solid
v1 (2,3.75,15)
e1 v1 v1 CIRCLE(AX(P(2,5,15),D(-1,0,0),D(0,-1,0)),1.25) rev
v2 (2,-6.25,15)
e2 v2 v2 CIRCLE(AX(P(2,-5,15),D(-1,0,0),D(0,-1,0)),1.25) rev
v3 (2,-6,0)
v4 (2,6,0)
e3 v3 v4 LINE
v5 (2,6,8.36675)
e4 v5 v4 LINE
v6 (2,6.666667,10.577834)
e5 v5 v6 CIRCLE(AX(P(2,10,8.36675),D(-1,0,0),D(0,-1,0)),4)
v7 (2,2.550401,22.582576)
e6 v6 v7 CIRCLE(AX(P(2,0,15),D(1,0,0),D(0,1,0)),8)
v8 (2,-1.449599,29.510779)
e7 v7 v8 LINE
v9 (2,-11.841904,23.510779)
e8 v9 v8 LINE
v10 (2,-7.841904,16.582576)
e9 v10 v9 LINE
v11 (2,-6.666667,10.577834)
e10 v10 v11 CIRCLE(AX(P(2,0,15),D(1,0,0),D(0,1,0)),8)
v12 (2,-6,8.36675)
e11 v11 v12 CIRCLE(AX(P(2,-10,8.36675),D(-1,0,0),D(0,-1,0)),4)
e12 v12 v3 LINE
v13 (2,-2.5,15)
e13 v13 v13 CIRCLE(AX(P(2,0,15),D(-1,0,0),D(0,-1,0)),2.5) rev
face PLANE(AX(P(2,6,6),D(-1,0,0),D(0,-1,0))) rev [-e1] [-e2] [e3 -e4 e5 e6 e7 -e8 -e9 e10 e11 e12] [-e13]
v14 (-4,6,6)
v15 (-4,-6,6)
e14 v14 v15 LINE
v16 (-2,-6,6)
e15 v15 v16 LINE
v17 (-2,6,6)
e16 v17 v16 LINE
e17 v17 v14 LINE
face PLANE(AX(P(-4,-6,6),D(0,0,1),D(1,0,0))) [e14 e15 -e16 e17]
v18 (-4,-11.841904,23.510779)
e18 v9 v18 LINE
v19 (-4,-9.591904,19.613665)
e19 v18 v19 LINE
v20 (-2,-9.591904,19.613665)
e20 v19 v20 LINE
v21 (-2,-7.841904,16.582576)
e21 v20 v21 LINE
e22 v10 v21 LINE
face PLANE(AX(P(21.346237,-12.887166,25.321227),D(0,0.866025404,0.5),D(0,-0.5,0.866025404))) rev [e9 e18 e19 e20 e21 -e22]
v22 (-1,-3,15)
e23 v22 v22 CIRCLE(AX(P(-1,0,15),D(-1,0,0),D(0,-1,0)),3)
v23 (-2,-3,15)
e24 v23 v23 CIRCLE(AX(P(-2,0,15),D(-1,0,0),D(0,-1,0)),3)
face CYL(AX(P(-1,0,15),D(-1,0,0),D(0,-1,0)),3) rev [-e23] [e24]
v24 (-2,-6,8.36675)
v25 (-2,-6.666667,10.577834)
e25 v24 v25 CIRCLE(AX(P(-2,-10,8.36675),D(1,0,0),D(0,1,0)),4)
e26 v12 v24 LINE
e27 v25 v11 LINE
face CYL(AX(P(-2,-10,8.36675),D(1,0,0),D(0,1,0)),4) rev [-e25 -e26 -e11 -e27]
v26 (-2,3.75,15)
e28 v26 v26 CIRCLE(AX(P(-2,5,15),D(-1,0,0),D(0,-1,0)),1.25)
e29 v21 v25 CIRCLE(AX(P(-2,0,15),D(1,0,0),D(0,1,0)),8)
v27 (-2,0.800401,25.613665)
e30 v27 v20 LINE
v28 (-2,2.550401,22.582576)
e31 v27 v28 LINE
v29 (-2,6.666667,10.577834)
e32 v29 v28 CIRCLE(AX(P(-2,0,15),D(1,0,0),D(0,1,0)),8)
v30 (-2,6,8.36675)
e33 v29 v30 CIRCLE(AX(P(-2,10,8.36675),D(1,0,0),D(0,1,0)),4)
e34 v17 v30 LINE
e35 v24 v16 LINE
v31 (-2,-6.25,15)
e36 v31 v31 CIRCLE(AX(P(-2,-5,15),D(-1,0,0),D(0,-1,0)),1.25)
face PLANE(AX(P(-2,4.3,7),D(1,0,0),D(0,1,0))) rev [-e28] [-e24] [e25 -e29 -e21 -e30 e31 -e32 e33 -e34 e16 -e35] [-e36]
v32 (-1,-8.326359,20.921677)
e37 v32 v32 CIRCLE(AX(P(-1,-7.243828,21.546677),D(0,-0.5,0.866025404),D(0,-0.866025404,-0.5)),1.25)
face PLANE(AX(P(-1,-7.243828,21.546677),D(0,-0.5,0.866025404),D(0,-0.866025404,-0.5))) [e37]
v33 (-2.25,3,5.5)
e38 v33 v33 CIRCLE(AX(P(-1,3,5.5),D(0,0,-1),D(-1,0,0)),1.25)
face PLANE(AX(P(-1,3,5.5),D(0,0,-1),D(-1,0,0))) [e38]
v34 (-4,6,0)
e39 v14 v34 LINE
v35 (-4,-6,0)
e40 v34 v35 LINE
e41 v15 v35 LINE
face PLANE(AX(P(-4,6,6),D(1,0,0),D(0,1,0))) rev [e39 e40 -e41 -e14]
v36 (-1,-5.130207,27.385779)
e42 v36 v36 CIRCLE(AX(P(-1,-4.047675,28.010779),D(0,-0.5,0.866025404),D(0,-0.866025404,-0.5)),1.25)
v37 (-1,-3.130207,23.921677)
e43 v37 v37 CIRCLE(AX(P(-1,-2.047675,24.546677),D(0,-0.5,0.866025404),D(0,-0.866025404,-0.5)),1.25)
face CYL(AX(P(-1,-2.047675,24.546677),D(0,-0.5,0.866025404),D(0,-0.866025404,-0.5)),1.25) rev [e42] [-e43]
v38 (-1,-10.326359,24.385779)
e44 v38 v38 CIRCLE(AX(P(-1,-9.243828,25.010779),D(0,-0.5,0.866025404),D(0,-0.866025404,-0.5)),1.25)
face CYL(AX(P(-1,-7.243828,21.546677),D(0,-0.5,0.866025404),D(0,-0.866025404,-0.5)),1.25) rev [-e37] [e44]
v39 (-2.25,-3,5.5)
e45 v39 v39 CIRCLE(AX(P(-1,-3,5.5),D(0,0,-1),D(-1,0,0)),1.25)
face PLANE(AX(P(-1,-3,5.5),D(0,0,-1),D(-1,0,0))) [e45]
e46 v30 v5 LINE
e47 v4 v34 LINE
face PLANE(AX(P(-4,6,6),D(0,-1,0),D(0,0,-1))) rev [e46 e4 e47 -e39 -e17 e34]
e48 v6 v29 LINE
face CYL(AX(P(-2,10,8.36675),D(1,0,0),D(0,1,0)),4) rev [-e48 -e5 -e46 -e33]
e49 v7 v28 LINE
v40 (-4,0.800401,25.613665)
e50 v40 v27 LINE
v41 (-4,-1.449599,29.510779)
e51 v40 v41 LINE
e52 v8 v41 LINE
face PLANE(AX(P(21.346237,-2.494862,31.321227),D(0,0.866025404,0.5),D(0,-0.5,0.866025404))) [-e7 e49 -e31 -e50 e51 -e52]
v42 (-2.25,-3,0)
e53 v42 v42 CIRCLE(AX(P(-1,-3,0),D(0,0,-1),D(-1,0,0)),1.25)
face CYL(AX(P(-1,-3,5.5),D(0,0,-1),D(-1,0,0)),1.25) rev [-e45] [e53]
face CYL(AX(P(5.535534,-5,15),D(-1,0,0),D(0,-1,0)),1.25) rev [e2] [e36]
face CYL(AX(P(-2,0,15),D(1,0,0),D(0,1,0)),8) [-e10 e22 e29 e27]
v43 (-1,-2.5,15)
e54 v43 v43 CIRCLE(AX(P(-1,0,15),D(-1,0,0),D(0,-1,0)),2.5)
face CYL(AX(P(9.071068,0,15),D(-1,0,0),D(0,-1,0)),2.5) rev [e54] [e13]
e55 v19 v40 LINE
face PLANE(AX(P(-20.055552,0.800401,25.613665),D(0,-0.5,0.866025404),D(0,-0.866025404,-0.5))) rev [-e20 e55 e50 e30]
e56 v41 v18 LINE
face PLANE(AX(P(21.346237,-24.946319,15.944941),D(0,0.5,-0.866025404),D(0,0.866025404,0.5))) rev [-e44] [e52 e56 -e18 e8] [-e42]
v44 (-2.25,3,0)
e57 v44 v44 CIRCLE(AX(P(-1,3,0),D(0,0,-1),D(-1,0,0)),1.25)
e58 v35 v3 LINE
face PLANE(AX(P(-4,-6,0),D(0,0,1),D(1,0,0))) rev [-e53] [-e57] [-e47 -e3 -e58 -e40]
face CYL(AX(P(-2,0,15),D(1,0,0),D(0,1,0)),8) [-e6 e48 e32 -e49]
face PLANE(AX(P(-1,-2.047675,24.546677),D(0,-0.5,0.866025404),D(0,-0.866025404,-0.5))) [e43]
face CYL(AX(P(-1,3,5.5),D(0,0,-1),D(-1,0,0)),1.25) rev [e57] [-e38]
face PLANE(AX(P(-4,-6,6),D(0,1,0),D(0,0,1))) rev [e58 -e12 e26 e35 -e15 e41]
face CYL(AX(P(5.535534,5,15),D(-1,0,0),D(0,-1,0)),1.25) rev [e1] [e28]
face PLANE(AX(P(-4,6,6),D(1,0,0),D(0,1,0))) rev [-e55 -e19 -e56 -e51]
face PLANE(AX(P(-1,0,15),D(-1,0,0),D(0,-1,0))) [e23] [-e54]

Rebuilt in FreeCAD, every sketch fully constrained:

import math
import FreeCAD as App
import Part
import Sketcher
Q = App.Units.Quantity


def edges_at(feature, points):
    """Names of the edges that pass closest to the given points."""
    edges = feature.Shape.Edges
    near = lambda p: min(range(len(edges)), key=lambda i: edges[i].distToShape(Part.Vertex(*p))[0])
    return sorted({f"Edge{near(p) + 1}" for p in points})


def add_polygon(sketch, points):
    """Adds a closed chain of lines whose ends are joined by coincident constraints."""
    first, n = sketch.GeometryCount, len(points)
    for a, b in zip(points, points[1:] + points[:1]):
        sketch.addGeometry(Part.LineSegment(App.Vector(*a, 0), App.Vector(*b, 0)), False)
    for i in range(n):
        sketch.addConstraint(Sketcher.Constraint("Coincident", first + i, 2, first + (i + 1) % n, 1))

doc = App.newDocument("Part")
body = doc.addObject("PartDesign::Body", "Body")

sketch1 = doc.addObject("Sketcher::SketchObject", "Sketch")
body.addObject(sketch1)
sketch1.AttachmentSupport = (doc.XY_Plane, [""])
sketch1.MapMode = "FlatFace"
add_polygon(sketch1, [(-4, 6), (-4, -6), (2, -6), (2, 6)])
sketch1.addConstraint([
    Sketcher.Constraint("Vertical", 0),
    Sketcher.Constraint("Horizontal", 1),
    Sketcher.Constraint("Vertical", 2),
    Sketcher.Constraint("Horizontal", 3),
    Sketcher.Constraint("DistanceX", 1, 1, 1, 2, Q("6 mm")),
    Sketcher.Constraint("DistanceY", 0, 2, 0, 1, Q("12 mm")),
    Sketcher.Constraint("DistanceX", 0, 2, -1, 1, Q("4 mm")),
    Sketcher.Constraint("DistanceY", 0, 2, -1, 1, Q("6 mm")),
])
pad1 = doc.addObject("PartDesign::Pad", "Pad")
body.addObject(pad1)
pad1.Profile = sketch1
pad1.Length = 6

sketch2 = doc.addObject("Sketcher::SketchObject", "Sketch001")
body.addObject(sketch2)
sketch2.AttachmentSupport = (doc.XY_Plane, [""])
sketch2.MapMode = "FlatFace"
sketch2.AttachmentOffset = App.Placement(App.Vector(0, 0, 6), App.Rotation())
add_polygon(sketch2, [(-2, 4.3), (-2, -4.3), (2, -4.3), (2, 4.3)])
sketch2.addConstraint([
    Sketcher.Constraint("Vertical", 0),
    Sketcher.Constraint("Horizontal", 1),
    Sketcher.Constraint("Vertical", 2),
    Sketcher.Constraint("Horizontal", 3),
    Sketcher.Constraint("Symmetric", 0, 2, 2, 2, -1, 1),
    Sketcher.Constraint("DistanceX", 1, 1, 1, 2, Q("4 mm")),
    Sketcher.Constraint("DistanceY", 0, 2, 0, 1, Q("8.6 mm")),
])
pad2 = doc.addObject("PartDesign::Pad", "Pad001")
body.addObject(pad2)
pad2.Profile = sketch2
pad2.Length = 1

sketch3 = doc.addObject("Sketcher::SketchObject", "Sketch002")
body.addObject(sketch3)
sketch3.AttachmentSupport = (doc.XY_Plane, [""])
sketch3.MapMode = "FlatFace"
sketch3.addGeometry([
    Part.Circle(App.Vector(-1, 3, 0), App.Vector(0, 0, 1), 1.2),
    Part.Circle(App.Vector(-1, -3, 0), App.Vector(0, 0, 1), 1.2),
], False)
sketch3.addConstraint([
    Sketcher.Constraint("Equal", 0, 1),
    Sketcher.Constraint("Symmetric", 0, 3, 1, 3, -1),
    Sketcher.Constraint("Diameter", 0, Q("2.5 mm")),
    Sketcher.Constraint("DistanceX", 0, 3, -1, 1, Q("1 mm")),
    Sketcher.Constraint("DistanceY", -1, 1, 0, 3, Q("3 mm")),
])
pocket1 = doc.addObject("PartDesign::Pocket", "Pocket")
body.addObject(pocket1)
pocket1.Profile = sketch3
pocket1.Length = 5.5
pocket1.Reversed = True

sketch4 = doc.addObject("Sketcher::SketchObject", "Sketch003")
body.addObject(sketch4)
sketch4.AttachmentSupport = (doc.YZ_Plane, [""])
sketch4.MapMode = "FlatFace"
sketch4.AttachmentOffset = App.Placement(App.Vector(0, 0, 2), App.Rotation())
sketch4.addGeometry([
    Part.LineSegment(App.Vector(6, 6, 0), App.Vector(6, 9.7, 0)),
    Part.ArcOfCircle(Part.Circle(App.Vector(0, 15, 0), App.Vector(0, 0, 1), 8), math.radians(-41), math.radians(221)),
    Part.LineSegment(App.Vector(-6, 9.7, 0), App.Vector(-6, 6, 0)),
    Part.LineSegment(App.Vector(-6, 6, 0), App.Vector(6, 6, 0)),
], False)
sketch4.addConstraint([
    Sketcher.Constraint("Coincident", 0, 2, 1, 1),
    Sketcher.Constraint("Coincident", 1, 2, 2, 1),
    Sketcher.Constraint("Coincident", 2, 2, 3, 1),
    Sketcher.Constraint("Coincident", 3, 2, 0, 1),
    Sketcher.Constraint("Vertical", 0),
    Sketcher.Constraint("Vertical", 2),
    Sketcher.Constraint("Horizontal", 3),
    Sketcher.Constraint("Symmetric", 0, 2, 1, 2, -2),
    Sketcher.Constraint("Radius", 1, Q("8 mm")),
    Sketcher.Constraint("DistanceX", 3, 1, 3, 2, Q("12 mm")),
    Sketcher.Constraint("DistanceY", -1, 1, 1, 3, Q("15 mm")),
    Sketcher.Constraint("DistanceY", -1, 1, 2, 2, Q("6 mm")),
])
pad3 = doc.addObject("PartDesign::Pad", "Pad002")
body.addObject(pad3)
pad3.Profile = sketch4
pad3.Length = 4
pad3.Reversed = True

sketch5 = doc.addObject("Sketcher::SketchObject", "Sketch004")
body.addObject(sketch5)
sketch5.AttachmentSupport = (doc.YZ_Plane, [""])
sketch5.MapMode = "FlatFace"
sketch5.AttachmentOffset = App.Placement(App.Vector(0, 0, -2), App.Rotation())
sketch5.addGeometry(Part.Circle(App.Vector(0, 15, 0), App.Vector(0, 0, 1), 3), False)
sketch5.addConstraint([
    Sketcher.Constraint("PointOnObject", 0, 3, -2),
    Sketcher.Constraint("Diameter", 0, Q("6 mm")),
    Sketcher.Constraint("DistanceY", -1, 1, 0, 3, Q("15 mm")),
])
pocket2 = doc.addObject("PartDesign::Pocket", "Pocket001")
body.addObject(pocket2)
pocket2.Profile = sketch5
pocket2.Length = 1
pocket2.Reversed = True

sketch6 = doc.addObject("Sketcher::SketchObject", "Sketch005")
body.addObject(sketch6)
sketch6.AttachmentSupport = (doc.YZ_Plane, [""])
sketch6.MapMode = "FlatFace"
sketch6.AttachmentOffset = App.Placement(App.Vector(0, 0, -2), App.Rotation())
sketch6.addGeometry([
    Part.Circle(App.Vector(-5, 15, 0), App.Vector(0, 0, 1), 1.2),
    Part.Circle(App.Vector(5, 15, 0), App.Vector(0, 0, 1), 1.2),
], False)
sketch6.addConstraint([
    Sketcher.Constraint("Equal", 0, 1),
    Sketcher.Constraint("Symmetric", 0, 3, 1, 3, -2),
    Sketcher.Constraint("Diameter", 0, Q("2.5 mm")),
    Sketcher.Constraint("DistanceX", 0, 3, -1, 1, Q("5 mm")),
    Sketcher.Constraint("DistanceY", -1, 1, 0, 3, Q("15 mm")),
])
pocket3 = doc.addObject("PartDesign::Pocket", "Pocket002")
body.addObject(pocket3)
pocket3.Profile = sketch6
pocket3.Length = 4
pocket3.Reversed = True

sketch7 = doc.addObject("Sketcher::SketchObject", "Sketch006")
body.addObject(sketch7)
sketch7.AttachmentSupport = (doc.YZ_Plane, [""])
sketch7.MapMode = "FlatFace"
sketch7.AttachmentOffset = App.Placement(App.Vector(0, 0, -1), App.Rotation())
sketch7.addGeometry(Part.Circle(App.Vector(0, 15, 0), App.Vector(0, 0, 1), 2.5), False)
sketch7.addConstraint([
    Sketcher.Constraint("PointOnObject", 0, 3, -2),
    Sketcher.Constraint("Diameter", 0, Q("5 mm")),
    Sketcher.Constraint("DistanceY", -1, 1, 0, 3, Q("15 mm")),
])
pocket4 = doc.addObject("PartDesign::Pocket", "Pocket003")
body.addObject(pocket4)
pocket4.Profile = sketch7
pocket4.Length = 3
pocket4.Reversed = True
doc.recompute()

fillet = doc.addObject("PartDesign::Fillet", "Fillet")
body.addObject(fillet)
fillet.Base = (pocket4, edges_at(pocket4, [(0, -6, 9.708), (0, 6, 9.708)]))
fillet.Radius = 4

sketch8 = doc.addObject("Sketcher::SketchObject", "Sketch007")
body.addObject(sketch8)
sketch8.AttachmentSupport = (doc.YZ_Plane, [""])
sketch8.MapMode = "FlatFace"
sketch8.AttachmentOffset = App.Placement(App.Vector(0, 0, 2), App.Rotation())
sketch8.addGeometry([
    Part.LineSegment(App.Vector(-8, 17, 0), App.Vector(-12, 24, 0)),
    Part.LineSegment(App.Vector(-12, 24, 0), App.Vector(-1, 30, 0)),
    Part.LineSegment(App.Vector(-1, 30, 0), App.Vector(3, 23, 0)),
    Part.ArcOfCircle(Part.Circle(App.Vector(0, 15, 0), App.Vector(0, 0, 1), 8), math.radians(71), math.radians(169)),
], False)
sketch8.addConstraint([
    Sketcher.Constraint("Coincident", 0, 2, 1, 1),
    Sketcher.Constraint("Coincident", 1, 2, 2, 1),
    Sketcher.Constraint("Coincident", 2, 2, 3, 1),
    Sketcher.Constraint("Coincident", 3, 2, 0, 1),
    Sketcher.Constraint("PointOnObject", 3, 3, -2),
    Sketcher.Constraint("Perpendicular", 0, 1),
    Sketcher.Constraint("Perpendicular", 1, 2),
    Sketcher.Constraint("Equal", 0, 2),
    Sketcher.Constraint("Radius", 3, Q("8 mm")),
    Sketcher.Constraint("Angle", 0, Q("120 deg")),
    Sketcher.Constraint("Distance", 0, Q("8 mm")),
    Sketcher.Constraint("Distance", 1, Q("12 mm")),
    Sketcher.Constraint("DistanceY", -1, 1, 3, 3, Q("15 mm")),
])
pad4 = doc.addObject("PartDesign::Pad", "Pad003")
body.addObject(pad4)
pad4.Profile = sketch8
pad4.Length = 4
pad4.Reversed = True

sketch9 = doc.addObject("Sketcher::SketchObject", "Sketch008")
body.addObject(sketch9)
sketch9.AttachmentSupport = (doc.YZ_Plane, [""])
sketch9.MapMode = "FlatFace"
sketch9.AttachmentOffset = App.Placement(App.Vector(0, 0, -2), App.Rotation())
add_polygon(sketch9, [(-1.4, 29.5), (0.8, 25.6), (-9.6, 19.6), (-11.8, 23.5)])
sketch9.addConstraint([
    Sketcher.Constraint("Perpendicular", 0, 1),
    Sketcher.Constraint("Perpendicular", 1, 2),
    Sketcher.Constraint("Perpendicular", 2, 3),
    Sketcher.Constraint("Angle", 0, Q("-60 deg")),
    Sketcher.Constraint("Distance", 1, Q("12 mm")),
    Sketcher.Constraint("Distance", 0, Q("4.5 mm")),
    Sketcher.Constraint("DistanceX", -1, 1, 0, 2, Q("0.800401 mm")),
    Sketcher.Constraint("DistanceY", -1, 1, 2, 2, Q("23.510779 mm")),
])
pad5 = doc.addObject("PartDesign::Pad", "Pad004")
body.addObject(pad5)
pad5.Profile = sketch9
pad5.Length = 2
pad5.Reversed = True

sketch10 = doc.addObject("Sketcher::SketchObject", "Sketch009")
body.addObject(sketch10)
sketch10.Placement = App.Placement(App.Vector(0, -13.140942, 22.760779), App.Rotation(App.Vector(1, 0, 0), App.Vector(0, 0.866025404, 0.5), App.Vector(0, -0.5, 0.866025404), "ZXY"))
sketch10.addGeometry([
    Part.Circle(App.Vector(-1, 4.5, 0), App.Vector(0, 0, 1), 1.2),
    Part.Circle(App.Vector(-1, 10.5, 0), App.Vector(0, 0, 1), 1.2),
], False)
sketch10.addConstraint([
    Sketcher.Constraint("Equal", 0, 1),
    Sketcher.Constraint("Vertical", 0, 3, 1, 3),
    Sketcher.Constraint("Diameter", 0, Q("2.5 mm")),
    Sketcher.Constraint("DistanceX", 0, 3, -1, 1, Q("1 mm")),
    Sketcher.Constraint("DistanceY", 0, 3, 1, 3, Q("6 mm")),
    Sketcher.Constraint("DistanceY", -1, 1, 0, 3, Q("4.5 mm")),
])
pocket5 = doc.addObject("PartDesign::Pocket", "Pocket004")
body.addObject(pocket5)
pocket5.Profile = sketch10
pocket5.Length = 4

doc.recompute()
